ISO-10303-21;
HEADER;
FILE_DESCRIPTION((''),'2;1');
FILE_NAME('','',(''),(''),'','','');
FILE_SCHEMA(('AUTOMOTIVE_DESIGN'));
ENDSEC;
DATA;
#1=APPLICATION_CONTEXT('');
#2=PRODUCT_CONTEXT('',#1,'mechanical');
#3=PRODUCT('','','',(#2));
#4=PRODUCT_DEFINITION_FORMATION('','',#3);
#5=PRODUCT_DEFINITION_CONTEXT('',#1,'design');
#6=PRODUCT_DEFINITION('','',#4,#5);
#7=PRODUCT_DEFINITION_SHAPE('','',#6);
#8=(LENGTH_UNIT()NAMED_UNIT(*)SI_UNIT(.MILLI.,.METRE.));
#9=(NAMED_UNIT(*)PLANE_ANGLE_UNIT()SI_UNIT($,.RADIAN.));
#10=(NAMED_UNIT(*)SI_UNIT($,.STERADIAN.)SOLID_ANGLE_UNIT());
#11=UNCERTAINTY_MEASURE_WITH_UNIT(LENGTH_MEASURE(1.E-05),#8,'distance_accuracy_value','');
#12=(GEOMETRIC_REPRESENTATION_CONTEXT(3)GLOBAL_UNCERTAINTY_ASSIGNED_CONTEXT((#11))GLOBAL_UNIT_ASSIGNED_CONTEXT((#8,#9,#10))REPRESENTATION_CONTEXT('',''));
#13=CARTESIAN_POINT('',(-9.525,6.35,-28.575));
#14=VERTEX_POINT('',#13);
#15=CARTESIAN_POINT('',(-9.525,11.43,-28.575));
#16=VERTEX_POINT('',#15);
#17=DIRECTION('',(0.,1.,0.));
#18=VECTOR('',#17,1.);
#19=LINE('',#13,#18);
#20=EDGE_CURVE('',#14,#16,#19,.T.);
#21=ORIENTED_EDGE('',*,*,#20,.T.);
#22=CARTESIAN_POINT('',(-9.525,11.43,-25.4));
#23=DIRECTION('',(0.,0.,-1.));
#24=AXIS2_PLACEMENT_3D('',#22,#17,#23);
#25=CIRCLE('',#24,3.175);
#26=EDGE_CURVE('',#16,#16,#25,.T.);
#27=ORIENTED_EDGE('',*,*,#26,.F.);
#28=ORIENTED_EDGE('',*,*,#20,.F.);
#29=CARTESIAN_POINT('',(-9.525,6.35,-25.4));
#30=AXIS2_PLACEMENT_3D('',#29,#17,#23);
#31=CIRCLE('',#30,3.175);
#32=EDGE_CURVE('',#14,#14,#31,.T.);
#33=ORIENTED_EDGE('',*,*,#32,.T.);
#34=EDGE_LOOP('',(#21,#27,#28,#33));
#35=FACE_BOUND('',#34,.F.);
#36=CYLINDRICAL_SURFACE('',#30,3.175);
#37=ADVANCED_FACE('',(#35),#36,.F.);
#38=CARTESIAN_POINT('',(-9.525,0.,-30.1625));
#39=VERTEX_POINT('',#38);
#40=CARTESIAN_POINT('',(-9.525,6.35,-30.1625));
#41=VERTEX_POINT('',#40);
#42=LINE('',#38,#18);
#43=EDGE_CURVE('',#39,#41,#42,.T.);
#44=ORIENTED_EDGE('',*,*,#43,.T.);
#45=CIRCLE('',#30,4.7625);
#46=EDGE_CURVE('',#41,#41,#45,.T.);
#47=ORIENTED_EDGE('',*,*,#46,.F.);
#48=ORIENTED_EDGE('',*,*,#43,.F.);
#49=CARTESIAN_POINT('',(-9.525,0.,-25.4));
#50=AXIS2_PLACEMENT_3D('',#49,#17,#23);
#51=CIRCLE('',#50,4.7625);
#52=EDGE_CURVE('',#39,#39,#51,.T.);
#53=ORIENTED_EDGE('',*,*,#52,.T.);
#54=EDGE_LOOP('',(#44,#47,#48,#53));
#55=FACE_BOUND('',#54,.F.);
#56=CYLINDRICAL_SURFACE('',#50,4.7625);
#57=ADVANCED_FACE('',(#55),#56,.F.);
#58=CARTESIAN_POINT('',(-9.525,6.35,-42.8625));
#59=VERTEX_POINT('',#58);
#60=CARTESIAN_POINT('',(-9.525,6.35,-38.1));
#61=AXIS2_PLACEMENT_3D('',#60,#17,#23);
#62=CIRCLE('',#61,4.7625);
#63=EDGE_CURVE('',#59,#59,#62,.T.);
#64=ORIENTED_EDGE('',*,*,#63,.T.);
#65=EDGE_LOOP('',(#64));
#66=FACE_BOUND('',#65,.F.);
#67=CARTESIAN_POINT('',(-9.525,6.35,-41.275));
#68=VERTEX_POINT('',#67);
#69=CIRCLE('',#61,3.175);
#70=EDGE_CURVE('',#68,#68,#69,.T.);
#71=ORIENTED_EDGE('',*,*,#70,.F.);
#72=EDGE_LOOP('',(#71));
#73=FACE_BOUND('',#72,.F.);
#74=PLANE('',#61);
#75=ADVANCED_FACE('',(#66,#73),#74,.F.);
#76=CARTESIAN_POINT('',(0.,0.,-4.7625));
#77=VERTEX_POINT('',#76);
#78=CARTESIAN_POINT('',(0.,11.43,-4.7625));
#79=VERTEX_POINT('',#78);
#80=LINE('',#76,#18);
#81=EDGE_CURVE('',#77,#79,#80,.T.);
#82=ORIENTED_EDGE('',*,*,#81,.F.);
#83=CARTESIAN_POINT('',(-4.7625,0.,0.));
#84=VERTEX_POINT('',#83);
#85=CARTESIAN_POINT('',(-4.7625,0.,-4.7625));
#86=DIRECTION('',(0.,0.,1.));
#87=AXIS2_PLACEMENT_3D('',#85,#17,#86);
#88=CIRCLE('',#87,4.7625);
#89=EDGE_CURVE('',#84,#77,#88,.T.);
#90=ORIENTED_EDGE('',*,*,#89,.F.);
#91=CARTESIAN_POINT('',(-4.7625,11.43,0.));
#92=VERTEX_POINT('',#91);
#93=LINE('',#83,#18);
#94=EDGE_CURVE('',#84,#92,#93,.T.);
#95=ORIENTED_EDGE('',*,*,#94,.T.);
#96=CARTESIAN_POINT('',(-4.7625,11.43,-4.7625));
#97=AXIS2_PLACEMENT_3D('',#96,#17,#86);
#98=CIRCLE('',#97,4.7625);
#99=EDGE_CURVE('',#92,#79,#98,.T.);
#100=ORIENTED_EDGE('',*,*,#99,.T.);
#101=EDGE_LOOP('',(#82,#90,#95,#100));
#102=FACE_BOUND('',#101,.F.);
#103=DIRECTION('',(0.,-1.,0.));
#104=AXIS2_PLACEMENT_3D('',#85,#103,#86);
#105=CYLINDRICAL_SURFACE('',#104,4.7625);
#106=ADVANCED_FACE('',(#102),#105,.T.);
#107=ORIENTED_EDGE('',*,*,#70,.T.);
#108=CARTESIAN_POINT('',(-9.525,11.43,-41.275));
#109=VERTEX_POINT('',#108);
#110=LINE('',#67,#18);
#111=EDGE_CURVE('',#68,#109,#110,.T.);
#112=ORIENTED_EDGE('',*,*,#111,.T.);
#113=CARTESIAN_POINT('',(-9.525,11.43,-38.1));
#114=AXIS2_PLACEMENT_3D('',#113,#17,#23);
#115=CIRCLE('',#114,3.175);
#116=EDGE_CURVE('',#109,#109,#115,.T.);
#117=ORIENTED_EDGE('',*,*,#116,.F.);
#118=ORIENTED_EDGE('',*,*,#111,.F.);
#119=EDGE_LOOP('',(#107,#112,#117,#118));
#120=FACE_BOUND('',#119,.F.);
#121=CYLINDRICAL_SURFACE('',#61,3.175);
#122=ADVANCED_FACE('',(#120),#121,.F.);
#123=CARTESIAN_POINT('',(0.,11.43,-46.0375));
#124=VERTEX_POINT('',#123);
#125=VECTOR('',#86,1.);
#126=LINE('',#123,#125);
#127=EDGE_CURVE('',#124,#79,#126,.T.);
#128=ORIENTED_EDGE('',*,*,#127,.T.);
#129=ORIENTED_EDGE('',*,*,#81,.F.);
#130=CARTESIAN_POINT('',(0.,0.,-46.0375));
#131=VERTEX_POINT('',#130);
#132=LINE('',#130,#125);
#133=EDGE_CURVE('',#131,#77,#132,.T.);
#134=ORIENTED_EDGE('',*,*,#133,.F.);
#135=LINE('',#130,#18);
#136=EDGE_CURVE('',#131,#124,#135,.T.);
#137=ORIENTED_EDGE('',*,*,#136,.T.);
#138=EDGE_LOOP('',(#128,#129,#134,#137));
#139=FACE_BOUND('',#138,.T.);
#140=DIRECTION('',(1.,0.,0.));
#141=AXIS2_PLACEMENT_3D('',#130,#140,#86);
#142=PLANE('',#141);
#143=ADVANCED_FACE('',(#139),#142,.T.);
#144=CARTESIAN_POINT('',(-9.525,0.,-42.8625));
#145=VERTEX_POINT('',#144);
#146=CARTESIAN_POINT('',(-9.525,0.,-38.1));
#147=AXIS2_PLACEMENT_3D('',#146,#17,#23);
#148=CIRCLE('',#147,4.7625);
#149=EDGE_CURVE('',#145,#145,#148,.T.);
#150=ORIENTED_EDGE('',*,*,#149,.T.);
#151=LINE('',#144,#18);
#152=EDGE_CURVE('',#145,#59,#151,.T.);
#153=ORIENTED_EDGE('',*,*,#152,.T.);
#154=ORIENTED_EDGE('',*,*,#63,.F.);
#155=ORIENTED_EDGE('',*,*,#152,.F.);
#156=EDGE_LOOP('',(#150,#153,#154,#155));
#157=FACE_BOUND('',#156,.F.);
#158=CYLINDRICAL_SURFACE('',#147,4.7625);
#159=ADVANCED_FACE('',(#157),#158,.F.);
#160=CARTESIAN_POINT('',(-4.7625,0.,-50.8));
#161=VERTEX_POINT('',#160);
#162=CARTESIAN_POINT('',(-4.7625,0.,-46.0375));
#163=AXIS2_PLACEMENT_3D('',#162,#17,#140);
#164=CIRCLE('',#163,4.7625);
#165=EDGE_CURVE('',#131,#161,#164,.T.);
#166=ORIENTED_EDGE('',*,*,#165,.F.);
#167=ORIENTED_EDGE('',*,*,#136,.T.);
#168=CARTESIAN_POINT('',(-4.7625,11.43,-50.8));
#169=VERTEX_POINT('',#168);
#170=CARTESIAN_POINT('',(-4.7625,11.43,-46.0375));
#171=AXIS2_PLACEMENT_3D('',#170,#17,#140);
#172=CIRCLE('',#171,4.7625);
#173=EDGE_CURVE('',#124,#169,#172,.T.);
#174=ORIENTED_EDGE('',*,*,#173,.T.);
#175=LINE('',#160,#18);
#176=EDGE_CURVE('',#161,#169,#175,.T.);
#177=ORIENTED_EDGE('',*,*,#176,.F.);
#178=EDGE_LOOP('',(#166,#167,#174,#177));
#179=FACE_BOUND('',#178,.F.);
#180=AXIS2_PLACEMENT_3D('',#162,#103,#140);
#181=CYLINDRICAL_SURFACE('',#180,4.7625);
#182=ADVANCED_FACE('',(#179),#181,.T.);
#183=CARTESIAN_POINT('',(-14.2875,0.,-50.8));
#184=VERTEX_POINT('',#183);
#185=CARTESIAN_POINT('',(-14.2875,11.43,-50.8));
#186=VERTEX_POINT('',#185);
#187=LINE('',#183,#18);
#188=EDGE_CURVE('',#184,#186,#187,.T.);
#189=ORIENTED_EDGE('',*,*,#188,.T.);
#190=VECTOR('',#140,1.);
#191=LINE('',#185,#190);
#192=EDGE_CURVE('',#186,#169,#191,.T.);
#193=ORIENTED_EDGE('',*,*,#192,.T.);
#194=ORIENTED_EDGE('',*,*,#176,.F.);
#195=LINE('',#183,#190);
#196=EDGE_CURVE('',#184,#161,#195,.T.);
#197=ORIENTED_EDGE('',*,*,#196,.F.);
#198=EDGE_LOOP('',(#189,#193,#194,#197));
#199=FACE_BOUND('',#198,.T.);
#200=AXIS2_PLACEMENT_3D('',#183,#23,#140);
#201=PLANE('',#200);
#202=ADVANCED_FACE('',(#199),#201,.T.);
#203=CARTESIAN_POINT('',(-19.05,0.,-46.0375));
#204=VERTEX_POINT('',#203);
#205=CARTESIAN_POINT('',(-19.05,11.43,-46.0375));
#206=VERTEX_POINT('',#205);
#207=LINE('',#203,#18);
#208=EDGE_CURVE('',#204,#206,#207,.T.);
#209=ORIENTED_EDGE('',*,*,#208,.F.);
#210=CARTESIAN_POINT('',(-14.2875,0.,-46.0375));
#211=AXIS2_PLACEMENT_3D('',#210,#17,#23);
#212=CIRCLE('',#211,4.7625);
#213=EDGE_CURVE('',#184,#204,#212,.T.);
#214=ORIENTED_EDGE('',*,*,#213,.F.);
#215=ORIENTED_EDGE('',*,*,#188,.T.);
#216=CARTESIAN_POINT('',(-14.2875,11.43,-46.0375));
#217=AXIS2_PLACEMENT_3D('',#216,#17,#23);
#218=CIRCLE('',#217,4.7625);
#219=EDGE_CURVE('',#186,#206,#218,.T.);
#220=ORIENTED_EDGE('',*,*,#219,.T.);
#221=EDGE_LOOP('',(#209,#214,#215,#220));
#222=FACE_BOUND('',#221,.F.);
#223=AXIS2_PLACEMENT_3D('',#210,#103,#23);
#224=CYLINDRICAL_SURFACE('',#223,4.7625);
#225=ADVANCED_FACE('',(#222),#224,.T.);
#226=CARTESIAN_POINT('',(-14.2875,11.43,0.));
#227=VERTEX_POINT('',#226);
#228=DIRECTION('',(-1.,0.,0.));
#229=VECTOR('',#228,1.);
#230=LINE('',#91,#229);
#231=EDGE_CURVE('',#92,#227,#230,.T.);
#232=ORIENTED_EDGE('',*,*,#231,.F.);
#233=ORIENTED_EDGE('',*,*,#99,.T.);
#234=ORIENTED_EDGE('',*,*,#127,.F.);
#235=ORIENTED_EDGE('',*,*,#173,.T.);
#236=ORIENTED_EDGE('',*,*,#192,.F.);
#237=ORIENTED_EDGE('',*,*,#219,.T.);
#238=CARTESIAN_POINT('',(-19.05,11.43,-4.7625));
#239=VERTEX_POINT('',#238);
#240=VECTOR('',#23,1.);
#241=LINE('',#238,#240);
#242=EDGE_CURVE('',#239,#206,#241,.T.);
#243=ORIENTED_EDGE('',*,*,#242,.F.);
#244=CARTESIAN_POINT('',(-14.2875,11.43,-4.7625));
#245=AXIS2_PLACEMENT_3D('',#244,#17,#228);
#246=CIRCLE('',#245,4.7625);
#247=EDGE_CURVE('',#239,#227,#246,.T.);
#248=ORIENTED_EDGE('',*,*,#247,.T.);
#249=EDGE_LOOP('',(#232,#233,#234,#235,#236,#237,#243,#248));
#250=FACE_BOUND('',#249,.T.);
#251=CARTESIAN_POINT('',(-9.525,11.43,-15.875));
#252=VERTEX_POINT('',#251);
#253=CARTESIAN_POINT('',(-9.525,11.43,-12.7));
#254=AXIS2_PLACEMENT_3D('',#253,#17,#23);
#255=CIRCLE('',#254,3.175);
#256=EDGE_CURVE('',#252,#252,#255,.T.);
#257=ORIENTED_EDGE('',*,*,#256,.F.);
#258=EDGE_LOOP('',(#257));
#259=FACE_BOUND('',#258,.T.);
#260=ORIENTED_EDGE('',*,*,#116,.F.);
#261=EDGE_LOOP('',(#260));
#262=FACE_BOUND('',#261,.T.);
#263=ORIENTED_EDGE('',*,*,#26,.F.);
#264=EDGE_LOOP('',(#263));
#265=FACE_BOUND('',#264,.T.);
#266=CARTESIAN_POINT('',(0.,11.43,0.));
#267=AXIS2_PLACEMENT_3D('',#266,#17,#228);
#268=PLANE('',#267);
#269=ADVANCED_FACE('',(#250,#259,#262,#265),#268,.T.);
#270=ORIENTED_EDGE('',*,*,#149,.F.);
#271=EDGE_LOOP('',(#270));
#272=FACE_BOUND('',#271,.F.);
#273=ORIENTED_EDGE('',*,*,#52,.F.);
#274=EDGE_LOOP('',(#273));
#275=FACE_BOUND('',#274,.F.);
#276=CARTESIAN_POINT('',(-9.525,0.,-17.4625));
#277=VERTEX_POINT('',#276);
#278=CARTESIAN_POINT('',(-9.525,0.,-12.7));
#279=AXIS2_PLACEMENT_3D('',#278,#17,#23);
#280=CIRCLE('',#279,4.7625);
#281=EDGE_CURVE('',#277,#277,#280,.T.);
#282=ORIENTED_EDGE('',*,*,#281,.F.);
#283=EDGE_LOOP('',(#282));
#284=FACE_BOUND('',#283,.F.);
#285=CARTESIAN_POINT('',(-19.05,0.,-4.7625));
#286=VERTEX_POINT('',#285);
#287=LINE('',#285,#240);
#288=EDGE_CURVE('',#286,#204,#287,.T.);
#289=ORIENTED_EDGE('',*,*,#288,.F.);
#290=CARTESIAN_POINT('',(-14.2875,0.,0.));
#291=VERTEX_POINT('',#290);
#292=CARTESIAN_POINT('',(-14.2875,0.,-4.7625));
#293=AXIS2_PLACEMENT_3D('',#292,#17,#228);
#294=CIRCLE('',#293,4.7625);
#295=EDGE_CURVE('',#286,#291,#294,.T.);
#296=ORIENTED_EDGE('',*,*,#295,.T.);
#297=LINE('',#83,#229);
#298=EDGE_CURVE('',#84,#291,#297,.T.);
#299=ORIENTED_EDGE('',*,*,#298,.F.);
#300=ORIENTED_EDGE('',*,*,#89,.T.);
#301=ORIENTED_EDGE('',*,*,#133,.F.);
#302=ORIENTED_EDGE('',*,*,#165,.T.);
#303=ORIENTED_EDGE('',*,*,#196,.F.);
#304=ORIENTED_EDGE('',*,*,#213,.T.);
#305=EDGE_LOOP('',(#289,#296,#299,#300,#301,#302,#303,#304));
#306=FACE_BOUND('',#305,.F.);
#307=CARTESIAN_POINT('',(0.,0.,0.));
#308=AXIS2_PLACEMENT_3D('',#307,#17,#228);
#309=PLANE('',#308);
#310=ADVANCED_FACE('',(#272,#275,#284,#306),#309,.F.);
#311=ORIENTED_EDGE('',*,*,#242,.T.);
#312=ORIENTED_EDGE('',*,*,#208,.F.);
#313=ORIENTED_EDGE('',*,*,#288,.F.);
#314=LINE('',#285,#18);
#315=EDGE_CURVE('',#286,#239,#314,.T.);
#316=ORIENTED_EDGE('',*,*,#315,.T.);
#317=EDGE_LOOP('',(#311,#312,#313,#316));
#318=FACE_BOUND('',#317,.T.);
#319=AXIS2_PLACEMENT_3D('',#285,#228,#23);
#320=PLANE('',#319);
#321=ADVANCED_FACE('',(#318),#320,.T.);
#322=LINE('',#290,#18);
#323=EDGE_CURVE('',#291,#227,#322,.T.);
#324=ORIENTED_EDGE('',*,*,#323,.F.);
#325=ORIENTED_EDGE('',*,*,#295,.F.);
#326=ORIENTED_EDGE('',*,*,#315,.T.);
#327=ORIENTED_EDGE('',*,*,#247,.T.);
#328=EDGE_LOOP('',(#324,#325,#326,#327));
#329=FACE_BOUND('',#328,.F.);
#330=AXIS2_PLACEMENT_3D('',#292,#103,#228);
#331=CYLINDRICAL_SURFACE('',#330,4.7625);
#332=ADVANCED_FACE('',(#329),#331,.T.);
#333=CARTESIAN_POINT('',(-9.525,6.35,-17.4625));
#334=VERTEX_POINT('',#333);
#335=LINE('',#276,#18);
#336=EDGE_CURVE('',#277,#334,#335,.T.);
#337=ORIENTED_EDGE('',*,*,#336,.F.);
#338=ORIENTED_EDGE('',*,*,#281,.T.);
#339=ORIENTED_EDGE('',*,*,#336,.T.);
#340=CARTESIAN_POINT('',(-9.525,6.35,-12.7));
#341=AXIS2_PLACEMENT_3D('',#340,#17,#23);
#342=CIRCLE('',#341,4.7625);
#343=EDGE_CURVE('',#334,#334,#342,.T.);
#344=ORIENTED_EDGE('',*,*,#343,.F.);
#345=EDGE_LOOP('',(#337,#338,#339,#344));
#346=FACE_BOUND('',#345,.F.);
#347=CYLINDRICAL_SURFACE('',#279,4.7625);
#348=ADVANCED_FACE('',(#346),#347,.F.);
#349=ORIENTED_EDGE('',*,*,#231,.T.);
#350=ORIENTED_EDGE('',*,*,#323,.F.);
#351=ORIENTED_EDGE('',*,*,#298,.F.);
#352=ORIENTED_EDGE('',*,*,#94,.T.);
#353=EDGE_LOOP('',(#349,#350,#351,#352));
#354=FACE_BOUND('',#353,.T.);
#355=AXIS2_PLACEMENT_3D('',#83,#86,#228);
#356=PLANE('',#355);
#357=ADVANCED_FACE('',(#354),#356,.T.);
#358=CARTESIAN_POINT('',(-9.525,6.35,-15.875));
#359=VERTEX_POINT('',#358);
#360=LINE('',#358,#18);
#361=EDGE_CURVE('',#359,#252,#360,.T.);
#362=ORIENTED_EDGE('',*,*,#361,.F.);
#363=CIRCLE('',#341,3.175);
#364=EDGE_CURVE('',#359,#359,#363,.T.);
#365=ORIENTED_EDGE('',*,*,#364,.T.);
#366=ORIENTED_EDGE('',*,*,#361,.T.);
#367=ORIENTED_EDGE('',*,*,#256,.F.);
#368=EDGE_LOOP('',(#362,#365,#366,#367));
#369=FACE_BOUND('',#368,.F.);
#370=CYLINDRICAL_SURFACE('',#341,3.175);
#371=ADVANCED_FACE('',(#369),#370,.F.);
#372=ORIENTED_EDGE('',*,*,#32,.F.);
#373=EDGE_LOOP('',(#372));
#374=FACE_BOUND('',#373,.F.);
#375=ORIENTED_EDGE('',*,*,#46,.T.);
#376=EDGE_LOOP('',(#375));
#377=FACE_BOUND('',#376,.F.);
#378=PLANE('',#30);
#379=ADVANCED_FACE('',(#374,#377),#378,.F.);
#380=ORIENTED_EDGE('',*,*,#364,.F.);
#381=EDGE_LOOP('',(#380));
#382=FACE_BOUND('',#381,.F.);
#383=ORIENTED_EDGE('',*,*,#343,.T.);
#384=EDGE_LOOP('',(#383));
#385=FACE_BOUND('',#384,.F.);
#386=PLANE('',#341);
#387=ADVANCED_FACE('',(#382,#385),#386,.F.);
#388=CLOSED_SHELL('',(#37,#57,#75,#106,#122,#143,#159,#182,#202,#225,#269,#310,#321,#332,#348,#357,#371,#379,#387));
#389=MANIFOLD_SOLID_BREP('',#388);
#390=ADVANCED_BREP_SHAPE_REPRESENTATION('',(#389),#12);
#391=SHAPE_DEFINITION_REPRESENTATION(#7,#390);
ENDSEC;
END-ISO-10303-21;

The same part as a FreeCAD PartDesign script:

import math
import FreeCAD as App
import Part
import Sketcher
from FreeCAD import Vector
Q = App.Units.Quantity

doc = App.newDocument("Part")
params = doc.addObject("Spreadsheet::Sheet", "Params")
for row, (alias, value) in enumerate([
    ("sketch1_radius", "0.1875 in"),
    ("sketch1_width", "0.375 in"),
    ("pad1_length", "0.45 in"),
    ("sketch2_diameter", "0.25 in"),
    ("hole_diameter", "0.25 in"),
    ("hole_depth", "1 in"),
    ("hole_cbore_diameter", "0.375 in"),
    ("hole_cbore_depth", "0.25 in"),
], start=1):
    params.set(f"A{row}", alias)
    params.set(f"B{row}", "=" + value)
    params.setAlias(f"B{row}", alias)

body = doc.addObject("PartDesign::Body", "Body")

# Sketch on XZ plane
sketch1 = body.newObject("Sketcher::SketchObject", "Sketch")
sketch1.AttachmentSupport = (doc.getObject("XZ_Plane"), [""])
sketch1.MapMode = "FlatFace"
sketch1.addGeometry([
    Part.LineSegment(Vector(-14.3, 0, 0), Vector(-4.8, 0, 0)),  # 0
    Part.ArcOfCircle(Part.Circle(Vector(-4.8, -4.8, 0), Vector(0, 0, 1), 4.8), math.radians(0), math.radians(90)),  # 1
    Part.LineSegment(Vector(0, -4.8, 0), Vector(0, -46, 0)),  # 2
    Part.ArcOfCircle(Part.Circle(Vector(-4.8, -46, 0), Vector(0, 0, 1), 4.8), math.radians(-90), math.radians(0)),  # 3
    Part.LineSegment(Vector(-4.8, -50.8, 0), Vector(-14.3, -50.8, 0)),  # 4
    Part.ArcOfCircle(Part.Circle(Vector(-14.3, -46, 0), Vector(0, 0, 1), 4.8), math.radians(180), math.radians(270)),  # 5
    Part.LineSegment(Vector(-19.1, -46, 0), Vector(-19.1, -4.8, 0)),  # 6
    Part.ArcOfCircle(Part.Circle(Vector(-14.3, -4.8, 0), Vector(0, 0, 1), 4.8), math.radians(90), math.radians(180)),  # 7
], False)
sketch1.addConstraint([
    Sketcher.Constraint("Tangent", 0, 2, 1, 2),
    Sketcher.Constraint("Tangent", 1, 1, 2, 1),
    Sketcher.Constraint("Tangent", 2, 2, 3, 2),
    Sketcher.Constraint("Tangent", 3, 1, 4, 1),
    Sketcher.Constraint("Tangent", 4, 2, 5, 2),
    Sketcher.Constraint("Tangent", 5, 1, 6, 1),
    Sketcher.Constraint("Tangent", 6, 2, 7, 2),
    Sketcher.Constraint("Tangent", 7, 1, 0, 1),
    Sketcher.Constraint("Horizontal", 0),
    Sketcher.Constraint("Vertical", 2),
    Sketcher.Constraint("Horizontal", 4),
    Sketcher.Constraint("Vertical", 6),
    Sketcher.Constraint("Equal", 1, 3),
    Sketcher.Constraint("Equal", 3, 5),
    Sketcher.Constraint("Equal", 5, 7),
    Sketcher.Constraint("PointOnObject", 0, 2, -1),
    Sketcher.Constraint("PointOnObject", 1, 1, -2),
    Sketcher.Constraint("DistanceY", 3, 1, -1, 1, Q("2 in")),
    Sketcher.Constraint("Radius", 1, Q("0.1875 in")),
    Sketcher.Constraint("DistanceX", 0, 1, 0, 2, Q("0.375 in")),
])
sketch1.setExpression("Constraints[18]", "Params.sketch1_radius")
sketch1.setExpression("Constraints[19]", "Params.sketch1_width")
pad1 = body.newObject("PartDesign::Pad", "Pad")
pad1.Profile = sketch1
pad1.setExpression("Length", "Params.pad1_length")
pad1.Reversed = True

# Sketch on XZ plane
sketch2 = body.newObject("Sketcher::SketchObject", "Sketch001")
sketch2.AttachmentSupport = (doc.getObject("XZ_Plane"), [""])
sketch2.MapMode = "FlatFace"
sketch2.addGeometry([
    Part.Circle(Vector(-9.5, -38.1, 0), Vector(0, 0, 1), 3.2),
    Part.Circle(Vector(-9.5, -25.4, 0), Vector(0, 0, 1), 3.2),
    Part.Circle(Vector(-9.5, -38.1, 0), Vector(0, 0, 1), 3.2),
    Part.Circle(Vector(-9.5, -12.7, 0), Vector(0, 0, 1), 3.2),
], False)
sketch2.addConstraint([
    Sketcher.Constraint("Coincident", 2, 3, 0, 3),
    Sketcher.Constraint("Equal", 0, 1),
    Sketcher.Constraint("Equal", 1, 2),
    Sketcher.Constraint("Equal", 2, 3),
    Sketcher.Constraint("Vertical", 0, 3, 1, 3),
    Sketcher.Constraint("Vertical", 2, 3, 3, 3),
    Sketcher.Constraint("Diameter", 0, Q("0.25 in")),
    Sketcher.Constraint("DistanceY", 1, 3, -1, 1, Q("1 in")),
    Sketcher.Constraint("DistanceY", 0, 3, 3, 3, Q("1 in")),
    Sketcher.Constraint("DistanceY", 0, 3, -1, 1, Q("1.5 in")),
    Sketcher.Constraint("DistanceX", 0, 3, -1, 1, Q("0.375 in")),
])
sketch2.setExpression("Constraints[6]", "Params.sketch2_diameter")
doc.recompute()
hole = body.newObject("PartDesign::Hole", "Hole")
hole.Profile = sketch2
hole.ThreadType = "None"
hole.setExpression("Diameter", "Params.hole_diameter")
hole.DepthType = "Dimension"
hole.setExpression("Depth", "Params.hole_depth")
hole.DrillPoint = "Flat"
hole.HoleCutType = "Counterbore"
hole.setExpression("HoleCutDiameter", "Params.hole_cbore_diameter")
hole.setExpression("HoleCutDepth", "Params.hole_cbore_depth")

doc.recompute()
